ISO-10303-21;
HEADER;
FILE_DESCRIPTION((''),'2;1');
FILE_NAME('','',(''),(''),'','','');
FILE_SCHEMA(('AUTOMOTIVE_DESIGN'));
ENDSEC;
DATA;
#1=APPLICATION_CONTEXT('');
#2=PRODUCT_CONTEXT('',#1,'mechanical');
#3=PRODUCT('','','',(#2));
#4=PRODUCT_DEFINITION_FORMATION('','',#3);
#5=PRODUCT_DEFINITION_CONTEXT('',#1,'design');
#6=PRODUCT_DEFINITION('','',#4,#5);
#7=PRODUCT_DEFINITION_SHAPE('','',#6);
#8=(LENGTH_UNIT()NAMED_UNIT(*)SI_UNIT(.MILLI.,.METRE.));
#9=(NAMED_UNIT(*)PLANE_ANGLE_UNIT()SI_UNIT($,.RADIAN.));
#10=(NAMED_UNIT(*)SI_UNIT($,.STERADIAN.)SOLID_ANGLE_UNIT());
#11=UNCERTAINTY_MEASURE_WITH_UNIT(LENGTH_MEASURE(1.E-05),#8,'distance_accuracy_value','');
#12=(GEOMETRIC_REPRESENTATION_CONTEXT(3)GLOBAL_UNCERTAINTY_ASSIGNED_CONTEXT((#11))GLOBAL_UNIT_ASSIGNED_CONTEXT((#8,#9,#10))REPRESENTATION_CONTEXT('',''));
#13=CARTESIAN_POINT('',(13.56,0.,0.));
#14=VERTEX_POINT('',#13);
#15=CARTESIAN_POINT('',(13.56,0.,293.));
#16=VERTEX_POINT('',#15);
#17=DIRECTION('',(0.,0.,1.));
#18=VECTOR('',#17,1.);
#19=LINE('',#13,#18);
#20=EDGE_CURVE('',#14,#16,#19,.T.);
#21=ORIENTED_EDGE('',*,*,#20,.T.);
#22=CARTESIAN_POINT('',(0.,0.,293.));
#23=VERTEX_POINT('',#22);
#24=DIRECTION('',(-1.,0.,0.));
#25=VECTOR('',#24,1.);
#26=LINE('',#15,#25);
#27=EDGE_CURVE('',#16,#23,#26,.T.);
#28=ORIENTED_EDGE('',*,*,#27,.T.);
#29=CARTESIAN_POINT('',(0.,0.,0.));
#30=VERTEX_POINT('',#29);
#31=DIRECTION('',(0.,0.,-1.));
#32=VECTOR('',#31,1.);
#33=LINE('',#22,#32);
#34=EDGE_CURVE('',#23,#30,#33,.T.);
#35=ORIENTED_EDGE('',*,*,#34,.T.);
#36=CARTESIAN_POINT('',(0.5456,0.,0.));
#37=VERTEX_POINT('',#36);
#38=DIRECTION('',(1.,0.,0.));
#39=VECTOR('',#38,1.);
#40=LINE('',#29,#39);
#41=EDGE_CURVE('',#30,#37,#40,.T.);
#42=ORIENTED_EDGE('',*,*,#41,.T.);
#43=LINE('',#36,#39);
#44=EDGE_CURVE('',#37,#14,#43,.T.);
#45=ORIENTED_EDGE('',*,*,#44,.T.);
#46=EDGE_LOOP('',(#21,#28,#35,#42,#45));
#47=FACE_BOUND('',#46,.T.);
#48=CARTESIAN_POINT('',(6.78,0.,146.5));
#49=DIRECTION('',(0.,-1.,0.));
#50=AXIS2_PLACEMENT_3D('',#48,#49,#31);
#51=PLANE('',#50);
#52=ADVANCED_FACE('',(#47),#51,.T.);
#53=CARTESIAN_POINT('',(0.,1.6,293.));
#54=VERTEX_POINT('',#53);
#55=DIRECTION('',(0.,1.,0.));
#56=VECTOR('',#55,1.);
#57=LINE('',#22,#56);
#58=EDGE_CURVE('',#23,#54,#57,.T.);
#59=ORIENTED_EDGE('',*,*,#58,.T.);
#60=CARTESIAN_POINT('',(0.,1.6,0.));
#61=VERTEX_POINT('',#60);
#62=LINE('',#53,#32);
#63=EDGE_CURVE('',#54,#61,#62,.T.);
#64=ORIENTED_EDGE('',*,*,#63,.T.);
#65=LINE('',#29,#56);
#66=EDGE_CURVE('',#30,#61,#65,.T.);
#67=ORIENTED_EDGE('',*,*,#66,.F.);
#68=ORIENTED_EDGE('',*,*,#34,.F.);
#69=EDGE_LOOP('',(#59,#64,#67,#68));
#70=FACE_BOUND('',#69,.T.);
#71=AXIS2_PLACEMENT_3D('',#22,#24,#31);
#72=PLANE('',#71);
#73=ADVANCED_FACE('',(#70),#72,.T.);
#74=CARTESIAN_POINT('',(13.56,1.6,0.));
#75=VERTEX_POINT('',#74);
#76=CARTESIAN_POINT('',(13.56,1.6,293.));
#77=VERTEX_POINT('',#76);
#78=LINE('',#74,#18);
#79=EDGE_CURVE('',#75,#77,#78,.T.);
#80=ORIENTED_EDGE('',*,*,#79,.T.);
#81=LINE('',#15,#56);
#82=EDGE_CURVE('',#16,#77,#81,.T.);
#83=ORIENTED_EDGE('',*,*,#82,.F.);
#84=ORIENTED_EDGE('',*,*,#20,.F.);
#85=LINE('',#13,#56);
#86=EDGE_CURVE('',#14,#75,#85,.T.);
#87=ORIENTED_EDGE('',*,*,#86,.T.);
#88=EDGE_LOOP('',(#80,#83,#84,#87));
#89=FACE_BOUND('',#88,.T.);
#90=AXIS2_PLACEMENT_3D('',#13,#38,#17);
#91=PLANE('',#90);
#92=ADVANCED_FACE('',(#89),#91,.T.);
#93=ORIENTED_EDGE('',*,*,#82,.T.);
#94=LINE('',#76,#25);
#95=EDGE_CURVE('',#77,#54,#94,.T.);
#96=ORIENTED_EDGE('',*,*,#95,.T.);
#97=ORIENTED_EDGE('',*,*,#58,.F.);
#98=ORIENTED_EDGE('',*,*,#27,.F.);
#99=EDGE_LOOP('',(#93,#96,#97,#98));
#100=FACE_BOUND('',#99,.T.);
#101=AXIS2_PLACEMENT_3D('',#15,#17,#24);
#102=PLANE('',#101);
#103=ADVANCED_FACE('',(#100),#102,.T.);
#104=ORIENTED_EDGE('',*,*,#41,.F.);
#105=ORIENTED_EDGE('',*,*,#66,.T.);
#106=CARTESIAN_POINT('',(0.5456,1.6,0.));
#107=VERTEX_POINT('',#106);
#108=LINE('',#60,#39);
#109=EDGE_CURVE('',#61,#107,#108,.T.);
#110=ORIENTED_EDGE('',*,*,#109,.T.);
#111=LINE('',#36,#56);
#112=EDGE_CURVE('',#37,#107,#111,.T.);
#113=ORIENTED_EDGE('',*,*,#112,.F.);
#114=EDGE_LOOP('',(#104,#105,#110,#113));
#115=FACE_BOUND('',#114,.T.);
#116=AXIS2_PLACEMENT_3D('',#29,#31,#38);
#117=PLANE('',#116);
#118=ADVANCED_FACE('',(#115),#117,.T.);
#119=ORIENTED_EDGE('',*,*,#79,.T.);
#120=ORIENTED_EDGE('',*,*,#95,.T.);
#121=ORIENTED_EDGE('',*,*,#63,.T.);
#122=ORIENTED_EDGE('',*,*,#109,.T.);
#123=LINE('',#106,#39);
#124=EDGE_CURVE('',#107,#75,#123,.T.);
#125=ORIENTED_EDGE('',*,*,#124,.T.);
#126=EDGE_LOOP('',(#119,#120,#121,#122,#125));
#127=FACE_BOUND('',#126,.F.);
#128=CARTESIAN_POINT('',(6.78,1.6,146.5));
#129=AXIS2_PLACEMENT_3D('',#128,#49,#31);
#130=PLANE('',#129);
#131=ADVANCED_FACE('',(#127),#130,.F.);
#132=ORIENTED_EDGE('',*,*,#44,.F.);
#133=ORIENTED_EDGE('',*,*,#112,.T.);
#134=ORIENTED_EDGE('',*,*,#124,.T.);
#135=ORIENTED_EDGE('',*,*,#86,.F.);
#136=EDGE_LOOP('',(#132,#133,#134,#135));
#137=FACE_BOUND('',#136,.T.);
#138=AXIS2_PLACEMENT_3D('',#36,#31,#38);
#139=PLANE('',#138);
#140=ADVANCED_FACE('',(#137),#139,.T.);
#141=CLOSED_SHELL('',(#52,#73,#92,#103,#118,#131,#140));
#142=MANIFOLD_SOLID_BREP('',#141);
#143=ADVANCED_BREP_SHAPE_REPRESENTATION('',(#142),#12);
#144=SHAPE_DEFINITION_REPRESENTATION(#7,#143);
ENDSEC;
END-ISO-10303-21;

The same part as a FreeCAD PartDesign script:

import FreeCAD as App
import Part
import Sketcher
from FreeCAD import Vector


def add_polygon(sketch, points):
    """Adds a closed chain of lines whose ends are joined by coincident constraints."""
    first, n = sketch.GeometryCount, len(points)
    for a, b in zip(points, points[1:] + points[:1]):
        sketch.addGeometry(Part.LineSegment(App.Vector(*a, 0), App.Vector(*b, 0)), False)
    for i in range(n):
        sketch.addConstraint(Sketcher.Constraint("Coincident", first + i, 2, first + (i + 1) % n, 1))

doc = App.newDocument("Part")
body = doc.addObject("PartDesign::Body", "Body")

sketch1 = body.newObject("Sketcher::SketchObject", "Sketch")
sketch1.AttachmentSupport = (doc.getObject("XZ_Plane"), [""])
sketch1.MapMode = "FlatFace"
add_polygon(sketch1, [(13.56, 293), (0, 293), (0, 0), (13.56, 0)])
sketch1.addConstraint(Sketcher.Constraint("Horizontal", 0))
sketch1.addConstraint(Sketcher.Constraint("Vertical", 1))
sketch1.addConstraint(Sketcher.Constraint("Horizontal", 2))
sketch1.addConstraint(Sketcher.Constraint("Vertical", 3))
sketch1.addConstraint(Sketcher.Constraint("Coincident", 1, 2, -1, 1))
sketch1.addConstraint(Sketcher.Constraint("DistanceY", 1, 2, 1, 1, 293.0))
sketch1.addConstraint(Sketcher.Constraint("DistanceX", 0, 2, 0, 1, 13.56))
pad1 = body.newObject("PartDesign::Pad", "Pad")
pad1.Profile = sketch1
pad1.Length = 1.6
pad1.Reversed = True

doc.recompute()
